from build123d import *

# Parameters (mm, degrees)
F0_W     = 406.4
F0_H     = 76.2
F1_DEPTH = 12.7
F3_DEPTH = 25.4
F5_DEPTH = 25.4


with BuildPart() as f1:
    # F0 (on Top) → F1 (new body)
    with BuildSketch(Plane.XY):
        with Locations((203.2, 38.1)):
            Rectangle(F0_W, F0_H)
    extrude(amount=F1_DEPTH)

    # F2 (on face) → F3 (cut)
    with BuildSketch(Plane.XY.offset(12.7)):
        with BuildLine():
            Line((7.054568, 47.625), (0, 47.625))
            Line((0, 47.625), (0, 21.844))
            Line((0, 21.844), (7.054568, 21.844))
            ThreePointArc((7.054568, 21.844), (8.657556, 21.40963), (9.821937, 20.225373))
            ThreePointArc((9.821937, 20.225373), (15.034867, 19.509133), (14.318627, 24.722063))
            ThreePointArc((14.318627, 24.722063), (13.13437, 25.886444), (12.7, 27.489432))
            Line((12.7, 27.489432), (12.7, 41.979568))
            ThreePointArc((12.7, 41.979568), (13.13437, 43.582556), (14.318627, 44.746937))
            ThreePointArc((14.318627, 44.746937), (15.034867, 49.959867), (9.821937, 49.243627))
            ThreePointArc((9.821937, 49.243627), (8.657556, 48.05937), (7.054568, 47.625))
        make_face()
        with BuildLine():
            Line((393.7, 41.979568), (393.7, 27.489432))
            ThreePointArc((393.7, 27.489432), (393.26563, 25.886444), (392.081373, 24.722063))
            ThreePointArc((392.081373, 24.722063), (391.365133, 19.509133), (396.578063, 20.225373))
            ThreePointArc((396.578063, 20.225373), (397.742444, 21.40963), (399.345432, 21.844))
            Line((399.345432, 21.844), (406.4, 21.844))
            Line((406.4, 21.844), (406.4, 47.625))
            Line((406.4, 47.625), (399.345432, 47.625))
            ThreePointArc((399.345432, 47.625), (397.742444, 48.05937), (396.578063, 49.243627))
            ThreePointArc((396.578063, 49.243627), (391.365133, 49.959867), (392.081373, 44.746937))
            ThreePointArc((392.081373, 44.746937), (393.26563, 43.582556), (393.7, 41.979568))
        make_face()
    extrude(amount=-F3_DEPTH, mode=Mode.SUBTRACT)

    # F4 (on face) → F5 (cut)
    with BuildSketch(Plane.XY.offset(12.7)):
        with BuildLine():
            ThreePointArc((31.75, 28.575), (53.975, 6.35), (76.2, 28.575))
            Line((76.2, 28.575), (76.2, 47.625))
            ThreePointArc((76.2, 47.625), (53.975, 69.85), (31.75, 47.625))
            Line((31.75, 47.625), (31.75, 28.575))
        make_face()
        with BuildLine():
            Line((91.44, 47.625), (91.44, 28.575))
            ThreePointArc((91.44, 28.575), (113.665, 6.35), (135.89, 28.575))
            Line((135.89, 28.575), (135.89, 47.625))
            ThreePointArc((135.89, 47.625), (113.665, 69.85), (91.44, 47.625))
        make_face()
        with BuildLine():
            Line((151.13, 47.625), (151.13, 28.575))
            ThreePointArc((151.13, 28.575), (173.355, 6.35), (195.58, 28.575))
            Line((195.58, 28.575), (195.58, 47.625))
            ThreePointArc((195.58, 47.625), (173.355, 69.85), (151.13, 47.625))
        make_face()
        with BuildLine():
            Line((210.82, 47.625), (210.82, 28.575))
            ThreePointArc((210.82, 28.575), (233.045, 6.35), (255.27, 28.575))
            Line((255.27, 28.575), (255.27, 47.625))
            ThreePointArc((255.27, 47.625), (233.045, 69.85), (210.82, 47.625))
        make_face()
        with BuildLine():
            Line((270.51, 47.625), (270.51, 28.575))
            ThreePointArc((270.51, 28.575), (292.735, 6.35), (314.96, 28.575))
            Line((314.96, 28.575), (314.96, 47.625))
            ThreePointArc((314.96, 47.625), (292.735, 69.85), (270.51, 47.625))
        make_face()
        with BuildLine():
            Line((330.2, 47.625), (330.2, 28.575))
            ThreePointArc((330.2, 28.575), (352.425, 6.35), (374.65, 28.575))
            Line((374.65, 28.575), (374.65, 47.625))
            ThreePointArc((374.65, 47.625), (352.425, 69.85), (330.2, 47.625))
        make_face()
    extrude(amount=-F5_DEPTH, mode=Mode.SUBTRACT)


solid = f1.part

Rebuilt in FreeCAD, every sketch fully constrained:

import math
import FreeCAD as App
import Part
import Sketcher
from FreeCAD import Vector
Q = App.Units.Quantity

doc = App.newDocument("Part")
body = doc.addObject("PartDesign::Body", "Body")

# Sketch on XY plane
sketch1 = doc.addObject("Sketcher::SketchObject", "Sketch")
body.addObject(sketch1)
sketch1.AttachmentSupport = (doc.XY_Plane, [""])
sketch1.MapMode = "FlatFace"
sketch1.addGeometry([
    Part.LineSegment(Vector(0, 76, 0), Vector(0, 0, 0)),
    Part.LineSegment(Vector(0, 0, 0), Vector(406, 0, 0)),
    Part.LineSegment(Vector(406, 0, 0), Vector(406, 76, 0)),
    Part.LineSegment(Vector(406, 76, 0), Vector(0, 76, 0)),
], False)
sketch1.addConstraint([
    Sketcher.Constraint("Coincident", 0, 2, 1, 1),
    Sketcher.Constraint("Coincident", 1, 2, 2, 1),
    Sketcher.Constraint("Coincident", 2, 2, 3, 1),
    Sketcher.Constraint("Coincident", 3, 2, 0, 1),
    Sketcher.Constraint("Vertical", 0),
    Sketcher.Constraint("Horizontal", 1),
    Sketcher.Constraint("Vertical", 2),
    Sketcher.Constraint("Horizontal", 3),
    Sketcher.Constraint("Coincident", 0, 2, -1, 1),
    Sketcher.Constraint("DistanceX", 1, 1, 1, 2, Q("16 in")),
    Sketcher.Constraint("DistanceY", 0, 2, 0, 1, Q("3 in")),
])
pad1 = doc.addObject("PartDesign::Pad", "Pad")
body.addObject(pad1)
pad1.Profile = sketch1
pad1.Length = Q("0.5 in")

# Sketch on XY plane
sketch2 = doc.addObject("Sketcher::SketchObject", "Sketch001")
body.addObject(sketch2)
sketch2.AttachmentSupport = (doc.XY_Plane, [""])
sketch2.MapMode = "FlatFace"
sketch2.AttachmentOffset = App.Placement(Vector(0, 0, 0.5 * 25.4), App.Rotation())
sketch2.addGeometry([
    Part.LineSegment(Vector(7.1, 47.6, 0), Vector(0, 47.6, 0)),  # 0
    Part.LineSegment(Vector(0, 47.6, 0), Vector(0, 21.8, 0)),  # 1
    Part.LineSegment(Vector(0, 21.8, 0), Vector(7.1, 21.8, 0)),  # 2
    Part.ArcOfCircle(Part.Circle(Vector(7.1, 18.7, 0), Vector(0, 0, 1), 3.2), math.radians(29), math.radians(90)),  # 3
    Part.ArcOfCircle(Part.Circle(Vector(12.7, 21.8, 0), Vector(0, 0, 1), 3.3), math.radians(-151), math.radians(61)),  # 4
    Part.ArcOfCircle(Part.Circle(Vector(15.9, 27.5, 0), Vector(0, 0, 1), 3.2), math.radians(-180), math.radians(-119)),  # 5
    Part.LineSegment(Vector(12.7, 27.5, 0), Vector(12.7, 42, 0)),  # 6
    Part.ArcOfCircle(Part.Circle(Vector(15.9, 42, 0), Vector(0, 0, 1), 3.2), math.radians(119), math.radians(180)),  # 7
    Part.ArcOfCircle(Part.Circle(Vector(12.7, 47.6, 0), Vector(0, 0, 1), 3.3), math.radians(-61), math.radians(151)),  # 8
    Part.ArcOfCircle(Part.Circle(Vector(7.1, 50.8, 0), Vector(0, 0, 1), 3.2), math.radians(-90), math.radians(-29)),  # 9
    Part.LineSegment(Vector(393.7, 42, 0), Vector(393.7, 27.5, 0)),  # 10
    Part.ArcOfCircle(Part.Circle(Vector(390.5, 27.5, 0), Vector(0, 0, 1), 3.2), math.radians(-61), math.radians(0)),  # 11
    Part.ArcOfCircle(Part.Circle(Vector(393.7, 21.8, 0), Vector(0, 0, 1), 3.3), math.radians(119), math.radians(331)),  # 12
    Part.ArcOfCircle(Part.Circle(Vector(399.3, 18.7, 0), Vector(0, 0, 1), 3.2), math.radians(90), math.radians(151)),  # 13
    Part.LineSegment(Vector(399.3, 21.8, 0), Vector(406.4, 21.8, 0)),  # 14
    Part.LineSegment(Vector(406.4, 21.8, 0), Vector(406.4, 47.6, 0)),  # 15
    Part.LineSegment(Vector(406.4, 47.6, 0), Vector(399.3, 47.6, 0)),  # 16
    Part.ArcOfCircle(Part.Circle(Vector(399.3, 50.8, 0), Vector(0, 0, 1), 3.2), math.radians(-151), math.radians(-90)),  # 17
    Part.ArcOfCircle(Part.Circle(Vector(393.7, 47.6, 0), Vector(0, 0, 1), 3.3), math.radians(29), math.radians(241)),  # 18
    Part.ArcOfCircle(Part.Circle(Vector(390.5, 42, 0), Vector(0, 0, 1), 3.2), math.radians(0), math.radians(61)),  # 19
], False)
sketch2.addConstraint([
    Sketcher.Constraint("Coincident", 0, 2, 1, 1),
    Sketcher.Constraint("Coincident", 1, 2, 2, 1),
    Sketcher.Constraint("Tangent", 2, 2, 3, 2),
    Sketcher.Constraint("Tangent", 3, 1, 4, 1),
    Sketcher.Constraint("Tangent", 4, 2, 5, 2),
    Sketcher.Constraint("Tangent", 5, 1, 6, 1),
    Sketcher.Constraint("Tangent", 6, 2, 7, 2),
    Sketcher.Constraint("Tangent", 7, 1, 8, 1),
    Sketcher.Constraint("Tangent", 8, 2, 9, 2),
    Sketcher.Constraint("Tangent", 9, 1, 0, 1),
    Sketcher.Constraint("Tangent", 10, 2, 11, 2),
    Sketcher.Constraint("Tangent", 11, 1, 12, 1),
    Sketcher.Constraint("Tangent", 12, 2, 13, 2),
    Sketcher.Constraint("Tangent", 13, 1, 14, 1),
    Sketcher.Constraint("Coincident", 14, 2, 15, 1),
    Sketcher.Constraint("Coincident", 15, 2, 16, 1),
    Sketcher.Constraint("Tangent", 16, 2, 17, 2),
    Sketcher.Constraint("Tangent", 17, 1, 18, 1),
    Sketcher.Constraint("Tangent", 18, 2, 19, 2),
    Sketcher.Constraint("Tangent", 19, 1, 10, 1),
    Sketcher.Constraint("Horizontal", 0),
    Sketcher.Constraint("Vertical", 1),
    Sketcher.Constraint("Horizontal", 2),
    Sketcher.Constraint("Vertical", 6),
    Sketcher.Constraint("Vertical", 10),
    Sketcher.Constraint("Horizontal", 14),
    Sketcher.Constraint("Vertical", 15),
    Sketcher.Constraint("Horizontal", 16),
    Sketcher.Constraint("Equal", 3, 5),
    Sketcher.Constraint("Equal", 5, 7),
    Sketcher.Constraint("Equal", 4, 8),
    Sketcher.Constraint("Equal", 7, 9),
    Sketcher.Constraint("Equal", 9, 11),
    Sketcher.Constraint("Equal", 8, 12),
    Sketcher.Constraint("Equal", 11, 13),
    Sketcher.Constraint("Equal", 13, 17),
    Sketcher.Constraint("Equal", 12, 18),
    Sketcher.Constraint("Equal", 17, 19),
    Sketcher.Constraint("PointOnObject", 0, 2, -2),
    Sketcher.Constraint("Horizontal", 5, 3, 11, 3),
    Sketcher.Constraint("Horizontal", 4, 3, 12, 3),
    Sketcher.Constraint("Horizontal", 3, 3, 13, 3),
    Sketcher.Constraint("Horizontal", 9, 3, 17, 3),
    Sketcher.Constraint("Horizontal", 8, 3, 18, 3),
    Sketcher.Constraint("Horizontal", 7, 3, 19, 3),
    Sketcher.Constraint("Horizontal", 18, 3, 0, 2),
    Sketcher.Constraint("Horizontal", 12, 3, 1, 2),
    Sketcher.Constraint("Vertical", 4, 3, 8, 3),
    Sketcher.Constraint("Vertical", 8, 3, 5, 1),
    Sketcher.Constraint("Equal", 2, 14),
    Sketcher.Constraint("Radius", 4, Q("0.13 in")),
    Sketcher.Constraint("DistanceY", -1, 1, 9, 3, Q("2.0000001 in")),
    Sketcher.Constraint("DistanceX", -1, 1, 14, 2, Q("16 in")),
    Sketcher.Constraint("Radius", 3, Q("0.1250001 in")),
    Sketcher.Constraint("DistanceX", 4, 3, 12, 3, Q("14.9999999 in")),
    Sketcher.Constraint("DistanceY", 1, 2, 1, 1, Q("1.015 in")),
])
pocket1 = doc.addObject("PartDesign::Pocket", "Pocket")
body.addObject(pocket1)
pocket1.Profile = sketch2
pocket1.Length = Q("1 in")

# Sketch on XY plane
sketch3 = doc.addObject("Sketcher::SketchObject", "Sketch002")
body.addObject(sketch3)
sketch3.AttachmentSupport = (doc.XY_Plane, [""])
sketch3.MapMode = "FlatFace"
sketch3.AttachmentOffset = App.Placement(Vector(0, 0, 0.5 * 25.4), App.Rotation())
sketch3.addGeometry([
    Part.ArcOfCircle(Part.Circle(Vector(54, 29, 0), Vector(0, 0, 1), 22), math.radians(180), math.radians(360)),  # 0
    Part.LineSegment(Vector(76, 29, 0), Vector(76, 48, 0)),  # 1
    Part.ArcOfCircle(Part.Circle(Vector(54, 48, 0), Vector(0, 0, 1), 22), math.radians(0), math.radians(180)),  # 2
    Part.LineSegment(Vector(32, 48, 0), Vector(32, 29, 0)),  # 3
    Part.LineSegment(Vector(91, 48, 0), Vector(91, 29, 0)),  # 4
    Part.ArcOfCircle(Part.Circle(Vector(114, 29, 0), Vector(0, 0, 1), 22), math.radians(180), math.radians(360)),  # 5
    Part.LineSegment(Vector(136, 29, 0), Vector(136, 48, 0)),  # 6
    Part.ArcOfCircle(Part.Circle(Vector(114, 48, 0), Vector(0, 0, 1), 22), math.radians(0), math.radians(180)),  # 7
    Part.LineSegment(Vector(151, 48, 0), Vector(151, 29, 0)),  # 8
    Part.ArcOfCircle(Part.Circle(Vector(173, 29, 0), Vector(0, 0, 1), 22), math.radians(180), math.radians(360)),  # 9
    Part.LineSegment(Vector(196, 29, 0), Vector(196, 48, 0)),  # 10
    Part.ArcOfCircle(Part.Circle(Vector(173, 48, 0), Vector(0, 0, 1), 22), math.radians(0), math.radians(180)),  # 11
    Part.LineSegment(Vector(211, 48, 0), Vector(211, 29, 0)),  # 12
    Part.ArcOfCircle(Part.Circle(Vector(233, 29, 0), Vector(0, 0, 1), 22), math.radians(180), math.radians(360)),  # 13
    Part.LineSegment(Vector(255, 29, 0), Vector(255, 48, 0)),  # 14
    Part.ArcOfCircle(Part.Circle(Vector(233, 48, 0), Vector(0, 0, 1), 22), math.radians(0), math.radians(180)),  # 15
    Part.LineSegment(Vector(271, 48, 0), Vector(271, 29, 0)),  # 16
    Part.ArcOfCircle(Part.Circle(Vector(293, 29, 0), Vector(0, 0, 1), 22), math.radians(180), math.radians(360)),  # 17
    Part.LineSegment(Vector(315, 29, 0), Vector(315, 48, 0)),  # 18
    Part.ArcOfCircle(Part.Circle(Vector(293, 48, 0), Vector(0, 0, 1), 22), math.radians(0), math.radians(180)),  # 19
    Part.LineSegment(Vector(330, 48, 0), Vector(330, 29, 0)),  # 20
    Part.ArcOfCircle(Part.Circle(Vector(352, 29, 0), Vector(0, 0, 1), 22), math.radians(180), math.radians(360)),  # 21
    Part.LineSegment(Vector(375, 29, 0), Vector(375, 48, 0)),  # 22
    Part.ArcOfCircle(Part.Circle(Vector(352, 48, 0), Vector(0, 0, 1), 22), math.radians(0), math.radians(180)),  # 23
], False)
sketch3.addConstraint([
    Sketcher.Constraint("Tangent", 0, 2, 1, 1),
    Sketcher.Constraint("Tangent", 1, 2, 2, 1),
    Sketcher.Constraint("Tangent", 2, 2, 3, 1),
    Sketcher.Constraint("Tangent", 3, 2, 0, 1),
    Sketcher.Constraint("Tangent", 4, 2, 5, 1),
    Sketcher.Constraint("Tangent", 5, 2, 6, 1),
    Sketcher.Constraint("Tangent", 6, 2, 7, 1),
    Sketcher.Constraint("Tangent", 7, 2, 4, 1),
    Sketcher.Constraint("Tangent", 8, 2, 9, 1),
    Sketcher.Constraint("Tangent", 9, 2, 10, 1),
    Sketcher.Constraint("Tangent", 10, 2, 11, 1),
    Sketcher.Constraint("Tangent", 11, 2, 8, 1),
    Sketcher.Constraint("Tangent", 12, 2, 13, 1),
    Sketcher.Constraint("Tangent", 13, 2, 14, 1),
    Sketcher.Constraint("Tangent", 14, 2, 15, 1),
    Sketcher.Constraint("Tangent", 15, 2, 12, 1),
    Sketcher.Constraint("Tangent", 16, 2, 17, 1),
    Sketcher.Constraint("Tangent", 17, 2, 18, 1),
    Sketcher.Constraint("Tangent", 18, 2, 19, 1),
    Sketcher.Constraint("Tangent", 19, 2, 16, 1),
    Sketcher.Constraint("Tangent", 20, 2, 21, 1),
    Sketcher.Constraint("Tangent", 21, 2, 22, 1),
    Sketcher.Constraint("Tangent", 22, 2, 23, 1),
    Sketcher.Constraint("Tangent", 23, 2, 20, 1),
    Sketcher.Constraint("Vertical", 1),
    Sketcher.Constraint("Vertical", 3),
    Sketcher.Constraint("Vertical", 4),
    Sketcher.Constraint("Vertical", 6),
    Sketcher.Constraint("Vertical", 8),
    Sketcher.Constraint("Vertical", 10),
    Sketcher.Constraint("Vertical", 12),
    Sketcher.Constraint("Vertical", 14),
    Sketcher.Constraint("Vertical", 16),
    Sketcher.Constraint("Vertical", 18),
    Sketcher.Constraint("Vertical", 20),
    Sketcher.Constraint("Vertical", 22),
    Sketcher.Constraint("Equal", 2, 5),
    Sketcher.Constraint("Equal", 7, 9),
    Sketcher.Constraint("Equal", 11, 13),
    Sketcher.Constraint("Equal", 15, 17),
    Sketcher.Constraint("Equal", 19, 21),
    Sketcher.Constraint("Horizontal", 0, 3, 5, 3),
    Sketcher.Constraint("Horizontal", 2, 3, 7, 3),
    Sketcher.Constraint("Horizontal", 5, 3, 9, 3),
    Sketcher.Constraint("Horizontal", 7, 3, 11, 3),
    Sketcher.Constraint("Horizontal", 9, 3, 13, 3),
    Sketcher.Constraint("Horizontal", 11, 3, 15, 3),
    Sketcher.Constraint("Horizontal", 13, 3, 17, 3),
    Sketcher.Constraint("Horizontal", 15, 3, 19, 3),
    Sketcher.Constraint("Horizontal", 17, 3, 21, 3),
    Sketcher.Constraint("Horizontal", 19, 3, 23, 3),
    Sketcher.Constraint("DistanceX", -1, 1, 0, 2, Q("3 in")),
    Sketcher.Constraint("DistanceX", -1, 1, 20, 2, Q("13 in")),
    Sketcher.Constraint("Radius", 0, Q("0.875 in")),
    Sketcher.Constraint("DistanceY", 1, 1, 1, 2, Q("0.75 in")),
    Sketcher.Constraint("DistanceX", -1, 1, 4, 2, Q("3.6 in")),
    Sketcher.Constraint("DistanceX", -1, 1, 9, 2, Q("7.7 in")),
    Sketcher.Constraint("DistanceX", -1, 1, 12, 2, Q("8.3 in")),
    Sketcher.Constraint("DistanceX", -1, 1, 17, 2, Q("12.4 in")),
    Sketcher.Constraint("DistanceY", -1, 1, 0, 3, Q("1.125 in")),
])
pocket2 = doc.addObject("PartDesign::Pocket", "Pocket001")
body.addObject(pocket2)
pocket2.Profile = sketch3
pocket2.Length = Q("1 in")

doc.recompute()
